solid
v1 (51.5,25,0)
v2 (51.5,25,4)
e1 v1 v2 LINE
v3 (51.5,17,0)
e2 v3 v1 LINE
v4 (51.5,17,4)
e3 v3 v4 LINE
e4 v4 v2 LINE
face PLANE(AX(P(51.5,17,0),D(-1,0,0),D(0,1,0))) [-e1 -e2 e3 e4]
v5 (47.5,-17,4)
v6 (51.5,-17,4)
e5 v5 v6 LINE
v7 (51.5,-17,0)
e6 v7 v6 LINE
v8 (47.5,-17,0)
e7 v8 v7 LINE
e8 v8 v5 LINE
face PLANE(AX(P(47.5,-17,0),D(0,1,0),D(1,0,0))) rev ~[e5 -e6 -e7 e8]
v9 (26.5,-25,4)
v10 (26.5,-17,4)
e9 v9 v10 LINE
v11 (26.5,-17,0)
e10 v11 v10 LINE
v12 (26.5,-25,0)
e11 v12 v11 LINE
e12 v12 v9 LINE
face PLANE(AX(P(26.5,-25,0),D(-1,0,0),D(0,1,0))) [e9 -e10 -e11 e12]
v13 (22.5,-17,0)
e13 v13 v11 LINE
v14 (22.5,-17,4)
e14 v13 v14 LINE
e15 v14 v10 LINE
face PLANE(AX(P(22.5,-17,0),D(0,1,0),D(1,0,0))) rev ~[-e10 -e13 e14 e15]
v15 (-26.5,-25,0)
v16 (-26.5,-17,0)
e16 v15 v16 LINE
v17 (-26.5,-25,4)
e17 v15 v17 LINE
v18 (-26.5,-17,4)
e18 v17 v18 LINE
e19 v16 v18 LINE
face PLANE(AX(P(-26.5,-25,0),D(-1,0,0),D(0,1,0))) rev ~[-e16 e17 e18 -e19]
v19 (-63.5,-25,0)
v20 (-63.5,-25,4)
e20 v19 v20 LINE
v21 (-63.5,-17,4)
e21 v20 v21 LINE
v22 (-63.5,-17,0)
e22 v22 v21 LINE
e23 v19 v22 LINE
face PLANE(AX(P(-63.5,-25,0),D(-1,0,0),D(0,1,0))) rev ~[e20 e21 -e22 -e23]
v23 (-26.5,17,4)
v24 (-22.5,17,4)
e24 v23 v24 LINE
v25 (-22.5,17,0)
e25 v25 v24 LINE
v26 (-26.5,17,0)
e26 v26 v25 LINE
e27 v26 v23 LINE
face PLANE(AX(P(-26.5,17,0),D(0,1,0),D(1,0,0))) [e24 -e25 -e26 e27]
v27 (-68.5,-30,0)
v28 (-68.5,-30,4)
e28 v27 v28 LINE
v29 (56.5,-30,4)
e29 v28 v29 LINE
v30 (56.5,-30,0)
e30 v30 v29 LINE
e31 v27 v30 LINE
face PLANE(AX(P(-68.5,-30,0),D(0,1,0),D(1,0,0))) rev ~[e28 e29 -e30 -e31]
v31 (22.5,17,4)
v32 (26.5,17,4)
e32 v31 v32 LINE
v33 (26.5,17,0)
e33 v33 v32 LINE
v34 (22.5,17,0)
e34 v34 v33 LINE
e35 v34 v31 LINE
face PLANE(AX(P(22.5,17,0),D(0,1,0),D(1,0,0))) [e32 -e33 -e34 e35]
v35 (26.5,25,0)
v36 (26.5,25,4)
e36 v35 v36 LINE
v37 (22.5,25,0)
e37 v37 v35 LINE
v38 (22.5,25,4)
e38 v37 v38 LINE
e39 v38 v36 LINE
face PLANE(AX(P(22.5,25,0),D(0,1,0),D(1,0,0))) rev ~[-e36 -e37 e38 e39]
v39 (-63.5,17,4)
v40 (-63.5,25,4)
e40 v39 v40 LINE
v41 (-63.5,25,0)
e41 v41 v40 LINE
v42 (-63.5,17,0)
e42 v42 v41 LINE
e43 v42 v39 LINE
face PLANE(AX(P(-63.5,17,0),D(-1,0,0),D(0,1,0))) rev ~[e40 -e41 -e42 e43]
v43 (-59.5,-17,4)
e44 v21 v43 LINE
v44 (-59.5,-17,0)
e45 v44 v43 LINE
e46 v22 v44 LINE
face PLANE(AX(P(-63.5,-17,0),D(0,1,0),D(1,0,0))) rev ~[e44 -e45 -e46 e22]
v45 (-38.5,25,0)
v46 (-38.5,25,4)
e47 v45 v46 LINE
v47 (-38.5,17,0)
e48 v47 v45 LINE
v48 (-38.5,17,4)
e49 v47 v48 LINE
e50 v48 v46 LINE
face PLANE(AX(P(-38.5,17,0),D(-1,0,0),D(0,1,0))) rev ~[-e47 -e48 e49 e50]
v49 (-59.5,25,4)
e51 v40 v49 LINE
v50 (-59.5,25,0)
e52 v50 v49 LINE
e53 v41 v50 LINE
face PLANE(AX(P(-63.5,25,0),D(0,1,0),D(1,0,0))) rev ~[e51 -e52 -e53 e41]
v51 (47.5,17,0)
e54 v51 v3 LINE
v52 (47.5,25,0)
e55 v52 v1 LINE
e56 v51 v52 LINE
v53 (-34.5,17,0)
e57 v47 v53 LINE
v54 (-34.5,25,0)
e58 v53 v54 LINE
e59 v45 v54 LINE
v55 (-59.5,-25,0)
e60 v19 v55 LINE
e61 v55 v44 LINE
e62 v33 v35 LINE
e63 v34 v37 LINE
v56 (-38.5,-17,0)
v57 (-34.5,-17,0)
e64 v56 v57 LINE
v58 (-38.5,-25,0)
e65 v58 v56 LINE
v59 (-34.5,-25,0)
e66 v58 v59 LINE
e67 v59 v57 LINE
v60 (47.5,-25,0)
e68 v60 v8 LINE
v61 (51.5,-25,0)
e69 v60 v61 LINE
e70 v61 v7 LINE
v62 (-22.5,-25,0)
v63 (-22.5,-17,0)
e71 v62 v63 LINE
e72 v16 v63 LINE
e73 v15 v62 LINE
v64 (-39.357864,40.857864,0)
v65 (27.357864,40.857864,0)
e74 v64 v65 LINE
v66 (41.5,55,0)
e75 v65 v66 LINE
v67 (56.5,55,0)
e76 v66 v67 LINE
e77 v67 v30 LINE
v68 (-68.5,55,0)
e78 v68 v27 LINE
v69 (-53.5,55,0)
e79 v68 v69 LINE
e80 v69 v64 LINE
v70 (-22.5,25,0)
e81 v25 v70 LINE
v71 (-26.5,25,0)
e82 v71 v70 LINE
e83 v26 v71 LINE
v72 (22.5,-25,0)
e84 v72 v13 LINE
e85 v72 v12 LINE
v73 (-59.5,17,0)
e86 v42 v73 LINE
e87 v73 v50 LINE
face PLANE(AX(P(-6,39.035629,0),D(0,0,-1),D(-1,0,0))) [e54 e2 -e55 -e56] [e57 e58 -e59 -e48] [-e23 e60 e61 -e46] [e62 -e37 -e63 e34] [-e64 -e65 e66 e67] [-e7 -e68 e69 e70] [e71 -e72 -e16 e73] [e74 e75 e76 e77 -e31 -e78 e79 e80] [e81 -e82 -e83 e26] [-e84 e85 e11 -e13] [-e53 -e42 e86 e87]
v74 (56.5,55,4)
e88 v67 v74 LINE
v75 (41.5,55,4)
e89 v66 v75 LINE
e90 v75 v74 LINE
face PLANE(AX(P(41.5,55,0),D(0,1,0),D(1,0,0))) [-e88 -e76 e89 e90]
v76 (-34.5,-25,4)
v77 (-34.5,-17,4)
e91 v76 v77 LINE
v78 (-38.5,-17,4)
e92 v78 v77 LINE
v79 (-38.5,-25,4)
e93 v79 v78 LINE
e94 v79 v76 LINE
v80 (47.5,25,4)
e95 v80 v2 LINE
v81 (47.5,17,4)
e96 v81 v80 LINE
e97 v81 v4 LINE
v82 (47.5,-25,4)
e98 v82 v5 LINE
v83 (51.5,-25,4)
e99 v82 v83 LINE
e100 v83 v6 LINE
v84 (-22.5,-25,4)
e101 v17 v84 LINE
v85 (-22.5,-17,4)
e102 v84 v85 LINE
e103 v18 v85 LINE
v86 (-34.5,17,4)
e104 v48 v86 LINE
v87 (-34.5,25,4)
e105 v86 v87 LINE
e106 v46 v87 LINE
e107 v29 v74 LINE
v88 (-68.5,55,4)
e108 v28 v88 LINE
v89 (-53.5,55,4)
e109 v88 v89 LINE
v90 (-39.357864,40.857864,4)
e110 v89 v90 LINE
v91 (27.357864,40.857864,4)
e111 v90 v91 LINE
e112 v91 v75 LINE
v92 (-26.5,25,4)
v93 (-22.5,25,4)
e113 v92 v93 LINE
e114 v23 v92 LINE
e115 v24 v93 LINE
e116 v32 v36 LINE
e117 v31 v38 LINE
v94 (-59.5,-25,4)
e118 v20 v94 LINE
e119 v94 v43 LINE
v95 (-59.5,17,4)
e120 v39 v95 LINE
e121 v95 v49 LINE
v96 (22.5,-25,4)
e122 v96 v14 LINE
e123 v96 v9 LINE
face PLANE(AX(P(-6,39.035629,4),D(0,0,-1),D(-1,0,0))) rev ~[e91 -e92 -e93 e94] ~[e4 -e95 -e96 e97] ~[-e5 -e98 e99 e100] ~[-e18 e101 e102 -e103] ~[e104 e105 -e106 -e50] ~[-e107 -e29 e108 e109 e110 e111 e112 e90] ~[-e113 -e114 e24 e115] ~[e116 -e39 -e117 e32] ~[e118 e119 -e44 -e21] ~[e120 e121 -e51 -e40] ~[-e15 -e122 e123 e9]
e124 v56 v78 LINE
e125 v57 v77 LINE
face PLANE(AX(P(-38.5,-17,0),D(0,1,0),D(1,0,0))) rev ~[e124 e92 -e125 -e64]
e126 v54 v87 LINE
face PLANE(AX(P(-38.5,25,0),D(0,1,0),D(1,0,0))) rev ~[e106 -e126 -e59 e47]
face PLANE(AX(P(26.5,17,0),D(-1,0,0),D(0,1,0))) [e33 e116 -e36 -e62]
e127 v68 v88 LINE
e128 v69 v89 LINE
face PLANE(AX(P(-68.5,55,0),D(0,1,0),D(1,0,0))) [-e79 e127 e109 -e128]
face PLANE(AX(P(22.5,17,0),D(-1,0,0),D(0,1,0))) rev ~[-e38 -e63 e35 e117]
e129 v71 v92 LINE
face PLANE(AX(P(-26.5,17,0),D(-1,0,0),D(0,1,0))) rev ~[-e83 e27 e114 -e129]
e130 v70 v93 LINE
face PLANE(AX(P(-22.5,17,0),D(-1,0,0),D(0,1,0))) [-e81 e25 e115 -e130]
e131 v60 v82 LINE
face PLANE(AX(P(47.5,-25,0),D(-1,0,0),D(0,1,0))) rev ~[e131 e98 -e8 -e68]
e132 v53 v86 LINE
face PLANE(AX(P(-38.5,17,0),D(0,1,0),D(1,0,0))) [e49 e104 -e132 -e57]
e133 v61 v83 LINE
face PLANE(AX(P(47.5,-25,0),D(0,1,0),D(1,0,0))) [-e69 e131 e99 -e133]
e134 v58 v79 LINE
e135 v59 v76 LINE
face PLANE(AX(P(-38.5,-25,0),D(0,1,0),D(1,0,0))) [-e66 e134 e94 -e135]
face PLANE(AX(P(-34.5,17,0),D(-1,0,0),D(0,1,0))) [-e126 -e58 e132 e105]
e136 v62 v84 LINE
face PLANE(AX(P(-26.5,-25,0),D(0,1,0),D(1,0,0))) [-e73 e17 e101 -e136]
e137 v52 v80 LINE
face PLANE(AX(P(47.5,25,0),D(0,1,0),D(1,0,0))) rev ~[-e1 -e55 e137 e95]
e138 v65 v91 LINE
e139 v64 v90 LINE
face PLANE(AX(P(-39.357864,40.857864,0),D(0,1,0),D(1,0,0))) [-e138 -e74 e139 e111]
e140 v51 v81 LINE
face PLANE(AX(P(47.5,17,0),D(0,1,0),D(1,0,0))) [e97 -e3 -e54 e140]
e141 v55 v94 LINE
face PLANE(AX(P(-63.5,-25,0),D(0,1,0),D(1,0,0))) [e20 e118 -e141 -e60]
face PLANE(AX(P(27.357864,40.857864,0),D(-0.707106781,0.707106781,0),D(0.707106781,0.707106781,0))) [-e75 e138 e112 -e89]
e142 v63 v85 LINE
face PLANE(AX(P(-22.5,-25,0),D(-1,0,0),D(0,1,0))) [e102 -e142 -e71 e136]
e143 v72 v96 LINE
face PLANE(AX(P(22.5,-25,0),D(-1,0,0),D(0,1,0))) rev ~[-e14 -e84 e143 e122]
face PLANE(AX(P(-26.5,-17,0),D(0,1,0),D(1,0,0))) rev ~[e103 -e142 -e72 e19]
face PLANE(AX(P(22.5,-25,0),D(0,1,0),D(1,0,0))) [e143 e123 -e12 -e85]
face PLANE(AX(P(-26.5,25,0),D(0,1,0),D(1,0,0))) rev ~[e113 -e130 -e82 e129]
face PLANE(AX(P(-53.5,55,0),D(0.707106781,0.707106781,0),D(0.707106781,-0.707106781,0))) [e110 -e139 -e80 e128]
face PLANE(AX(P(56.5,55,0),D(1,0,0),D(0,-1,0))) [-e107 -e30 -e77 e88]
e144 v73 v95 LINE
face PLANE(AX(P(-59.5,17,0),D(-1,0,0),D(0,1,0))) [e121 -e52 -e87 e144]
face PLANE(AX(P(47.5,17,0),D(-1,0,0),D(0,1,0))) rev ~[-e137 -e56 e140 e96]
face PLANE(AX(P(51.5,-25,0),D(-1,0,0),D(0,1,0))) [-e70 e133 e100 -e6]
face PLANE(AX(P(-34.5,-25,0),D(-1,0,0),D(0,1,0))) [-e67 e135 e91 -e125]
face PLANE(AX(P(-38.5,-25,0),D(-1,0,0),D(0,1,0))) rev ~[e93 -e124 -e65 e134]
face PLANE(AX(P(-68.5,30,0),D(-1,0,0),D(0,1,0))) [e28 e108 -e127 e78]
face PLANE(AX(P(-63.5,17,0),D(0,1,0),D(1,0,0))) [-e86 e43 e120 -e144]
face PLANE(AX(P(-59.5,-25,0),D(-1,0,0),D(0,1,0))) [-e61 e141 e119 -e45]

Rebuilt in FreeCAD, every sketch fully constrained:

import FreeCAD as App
import Part
import Sketcher
from FreeCAD import Vector

doc = App.newDocument("Part")
body = doc.addObject("PartDesign::Body", "Body")

# Sketch on XY plane
sketch1 = body.newObject("Sketcher::SketchObject", "Sketch")
sketch1.AttachmentSupport = (doc.getObject("XY_Plane"), [""])
sketch1.MapMode = "FlatFace"
sketch1.addGeometry([
    Part.LineSegment(Vector(-68.5, 30, 0), Vector(-68.5, -30, 0)),  # 0
    Part.LineSegment(Vector(-68.5, -30, 0), Vector(56.5, -30, 0)),  # 1
    Part.LineSegment(Vector(56.5, -30, 0), Vector(56.5, 30, 0)),  # 2
    Part.LineSegment(Vector(56.5, 30, 0), Vector(-68.5, 30, 0)),  # 3
    Part.LineSegment(Vector(-59.5, -25, 0), Vector(-63.5, -25, 0)),  # 4
    Part.LineSegment(Vector(-63.5, -25, 0), Vector(-63.5, -17, 0)),  # 5
    Part.LineSegment(Vector(-63.5, -17, 0), Vector(-59.5, -17, 0)),  # 6
    Part.LineSegment(Vector(-59.5, -17, 0), Vector(-59.5, -25, 0)),  # 7
    Part.LineSegment(Vector(-34.5, -25, 0), Vector(-38.5, -25, 0)),  # 8
    Part.LineSegment(Vector(-38.5, -25, 0), Vector(-38.5, -17, 0)),  # 9
    Part.LineSegment(Vector(-38.5, -17, 0), Vector(-34.5, -17, 0)),  # 10
    Part.LineSegment(Vector(-34.5, -17, 0), Vector(-34.5, -25, 0)),  # 11
    Part.LineSegment(Vector(-22.5, -25, 0), Vector(-26.5, -25, 0)),  # 12
    Part.LineSegment(Vector(-26.5, -25, 0), Vector(-26.5, -17, 0)),  # 13
    Part.LineSegment(Vector(-26.5, -17, 0), Vector(-22.5, -17, 0)),  # 14
    Part.LineSegment(Vector(-22.5, -17, 0), Vector(-22.5, -25, 0)),  # 15
    Part.LineSegment(Vector(26.5, -25, 0), Vector(22.5, -25, 0)),  # 16
    Part.LineSegment(Vector(22.5, -25, 0), Vector(22.5, -17, 0)),  # 17
    Part.LineSegment(Vector(22.5, -17, 0), Vector(26.5, -17, 0)),  # 18
    Part.LineSegment(Vector(26.5, -17, 0), Vector(26.5, -25, 0)),  # 19
    Part.LineSegment(Vector(51.5, -25, 0), Vector(47.5, -25, 0)),  # 20
    Part.LineSegment(Vector(47.5, -25, 0), Vector(47.5, -17, 0)),  # 21
    Part.LineSegment(Vector(47.5, -17, 0), Vector(51.5, -17, 0)),  # 22
    Part.LineSegment(Vector(51.5, -17, 0), Vector(51.5, -25, 0)),  # 23
    Part.LineSegment(Vector(-59.5, 17, 0), Vector(-63.5, 17, 0)),  # 24
    Part.LineSegment(Vector(-63.5, 17, 0), Vector(-63.5, 25, 0)),  # 25
    Part.LineSegment(Vector(-63.5, 25, 0), Vector(-59.5, 25, 0)),  # 26
    Part.LineSegment(Vector(-59.5, 25, 0), Vector(-59.5, 17, 0)),  # 27
    Part.LineSegment(Vector(-34.5, 17, 0), Vector(-38.5, 17, 0)),  # 28
    Part.LineSegment(Vector(-38.5, 17, 0), Vector(-38.5, 25, 0)),  # 29
    Part.LineSegment(Vector(-38.5, 25, 0), Vector(-34.5, 25, 0)),  # 30
    Part.LineSegment(Vector(-34.5, 25, 0), Vector(-34.5, 17, 0)),  # 31
    Part.LineSegment(Vector(-22.5, 17, 0), Vector(-26.5, 17, 0)),  # 32
    Part.LineSegment(Vector(-26.5, 17, 0), Vector(-26.5, 25, 0)),  # 33
    Part.LineSegment(Vector(-26.5, 25, 0), Vector(-22.5, 25, 0)),  # 34
    Part.LineSegment(Vector(-22.5, 25, 0), Vector(-22.5, 17, 0)),  # 35
    Part.LineSegment(Vector(26.5, 17, 0), Vector(22.5, 17, 0)),  # 36
    Part.LineSegment(Vector(22.5, 17, 0), Vector(22.5, 25, 0)),  # 37
    Part.LineSegment(Vector(22.5, 25, 0), Vector(26.5, 25, 0)),  # 38
    Part.LineSegment(Vector(26.5, 25, 0), Vector(26.5, 17, 0)),  # 39
    Part.LineSegment(Vector(51.5, 17, 0), Vector(47.5, 17, 0)),  # 40
    Part.LineSegment(Vector(47.5, 17, 0), Vector(47.5, 25, 0)),  # 41
    Part.LineSegment(Vector(47.5, 25, 0), Vector(51.5, 25, 0)),  # 42
    Part.LineSegment(Vector(51.5, 25, 0), Vector(51.5, 17, 0)),  # 43
], False)
sketch1.addConstraint([
    Sketcher.Constraint("Coincident", 0, 2, 1, 1),
    Sketcher.Constraint("Coincident", 1, 2, 2, 1),
    Sketcher.Constraint("Coincident", 2, 2, 3, 1),
    Sketcher.Constraint("Coincident", 3, 2, 0, 1),
    Sketcher.Constraint("Coincident", 4, 2, 5, 1),
    Sketcher.Constraint("Coincident", 5, 2, 6, 1),
    Sketcher.Constraint("Coincident", 6, 2, 7, 1),
    Sketcher.Constraint("Coincident", 7, 2, 4, 1),
    Sketcher.Constraint("Coincident", 8, 2, 9, 1),
    Sketcher.Constraint("Coincident", 9, 2, 10, 1),
    Sketcher.Constraint("Coincident", 10, 2, 11, 1),
    Sketcher.Constraint("Coincident", 11, 2, 8, 1),
    Sketcher.Constraint("Coincident", 12, 2, 13, 1),
    Sketcher.Constraint("Coincident", 13, 2, 14, 1),
    Sketcher.Constraint("Coincident", 14, 2, 15, 1),
    Sketcher.Constraint("Coincident", 15, 2, 12, 1),
    Sketcher.Constraint("Coincident", 16, 2, 17, 1),
    Sketcher.Constraint("Coincident", 17, 2, 18, 1),
    Sketcher.Constraint("Coincident", 18, 2, 19, 1),
    Sketcher.Constraint("Coincident", 19, 2, 16, 1),
    Sketcher.Constraint("Coincident", 20, 2, 21, 1),
    Sketcher.Constraint("Coincident", 21, 2, 22, 1),
    Sketcher.Constraint("Coincident", 22, 2, 23, 1),
    Sketcher.Constraint("Coincident", 23, 2, 20, 1),
    Sketcher.Constraint("Coincident", 24, 2, 25, 1),
    Sketcher.Constraint("Coincident", 25, 2, 26, 1),
    Sketcher.Constraint("Coincident", 26, 2, 27, 1),
    Sketcher.Constraint("Coincident", 27, 2, 24, 1),
    Sketcher.Constraint("Coincident", 28, 2, 29, 1),
    Sketcher.Constraint("Coincident", 29, 2, 30, 1),
    Sketcher.Constraint("Coincident", 30, 2, 31, 1),
    Sketcher.Constraint("Coincident", 31, 2, 28, 1),
    Sketcher.Constraint("Coincident", 32, 2, 33, 1),
    Sketcher.Constraint("Coincident", 33, 2, 34, 1),
    Sketcher.Constraint("Coincident", 34, 2, 35, 1),
    Sketcher.Constraint("Coincident", 35, 2, 32, 1),
    Sketcher.Constraint("Coincident", 36, 2, 37, 1),
    Sketcher.Constraint("Coincident", 37, 2, 38, 1),
    Sketcher.Constraint("Coincident", 38, 2, 39, 1),
    Sketcher.Constraint("Coincident", 39, 2, 36, 1),
    Sketcher.Constraint("Coincident", 40, 2, 41, 1),
    Sketcher.Constraint("Coincident", 41, 2, 42, 1),
    Sketcher.Constraint("Coincident", 42, 2, 43, 1),
    Sketcher.Constraint("Coincident", 43, 2, 40, 1),
    Sketcher.Constraint("Vertical", 0),
    Sketcher.Constraint("Horizontal", 1),
    Sketcher.Constraint("Vertical", 2),
    Sketcher.Constraint("Horizontal", 3),
    Sketcher.Constraint("Horizontal", 4),
    Sketcher.Constraint("Vertical", 5),
    Sketcher.Constraint("Horizontal", 6),
    Sketcher.Constraint("Vertical", 7),
    Sketcher.Constraint("Horizontal", 8),
    Sketcher.Constraint("Vertical", 9),
    Sketcher.Constraint("Horizontal", 10),
    Sketcher.Constraint("Vertical", 11),
    Sketcher.Constraint("Horizontal", 12),
    Sketcher.Constraint("Vertical", 13),
    Sketcher.Constraint("Horizontal", 14),
    Sketcher.Constraint("Vertical", 15),
    Sketcher.Constraint("Horizontal", 16),
    Sketcher.Constraint("Vertical", 17),
    Sketcher.Constraint("Horizontal", 18),
    Sketcher.Constraint("Vertical", 19),
    Sketcher.Constraint("Horizontal", 20),
    Sketcher.Constraint("Vertical", 21),
    Sketcher.Constraint("Horizontal", 22),
    Sketcher.Constraint("Vertical", 23),
    Sketcher.Constraint("Horizontal", 24),
    Sketcher.Constraint("Vertical", 25),
    Sketcher.Constraint("Horizontal", 26),
    Sketcher.Constraint("Vertical", 27),
    Sketcher.Constraint("Horizontal", 28),
    Sketcher.Constraint("Vertical", 29),
    Sketcher.Constraint("Horizontal", 30),
    Sketcher.Constraint("Vertical", 31),
    Sketcher.Constraint("Horizontal", 32),
    Sketcher.Constraint("Vertical", 33),
    Sketcher.Constraint("Horizontal", 34),
    Sketcher.Constraint("Vertical", 35),
    Sketcher.Constraint("Horizontal", 36),
    Sketcher.Constraint("Vertical", 37),
    Sketcher.Constraint("Horizontal", 38),
    Sketcher.Constraint("Vertical", 39),
    Sketcher.Constraint("Horizontal", 40),
    Sketcher.Constraint("Vertical", 41),
    Sketcher.Constraint("Horizontal", 42),
    Sketcher.Constraint("Vertical", 43),
    Sketcher.Constraint("Symmetric", 18, 2, 32, 2, -1, 1),
    Sketcher.Constraint("Symmetric", 16, 2, 34, 2, -1, 1),
    Sketcher.Constraint("Symmetric", 14, 2, 36, 2, -1, 1),
    Sketcher.Constraint("Symmetric", 12, 2, 38, 2, -1, 1),
    Sketcher.Constraint("Symmetric", 15, 2, 16, 2, -2),
    Sketcher.Constraint("Symmetric", 13, 2, 18, 2, -2),
    Sketcher.Constraint("Symmetric", 5, 2, 24, 2, -1),
    Sketcher.Constraint("Symmetric", 7, 2, 26, 2, -1),
    Sketcher.Constraint("Symmetric", 9, 2, 28, 2, -1),
    Sketcher.Constraint("Symmetric", 11, 2, 30, 2, -1),
    Sketcher.Constraint("Symmetric", 21, 2, 40, 2, -1),
    Sketcher.Constraint("Symmetric", 23, 2, 42, 2, -1),
    Sketcher.Constraint("Horizontal", 7, 2, 8, 2),
    Sketcher.Constraint("Horizontal", 6, 2, 9, 2),
    Sketcher.Constraint("Horizontal", 11, 2, 12, 2),
    Sketcher.Constraint("Horizontal", 10, 2, 13, 2),
    Sketcher.Constraint("Horizontal", 19, 2, 20, 2),
    Sketcher.Constraint("Horizontal", 18, 2, 21, 2),
    Sketcher.Constraint("Equal", 6, 8),
    Sketcher.Constraint("Equal", 10, 12),
    Sketcher.Constraint("Equal", 18, 20),
    Sketcher.Constraint("DistanceX", 1, 1, 1, 2, 125.0),
    Sketcher.Constraint("DistanceX", 4, 2, 4, 1, 4.0),
    Sketcher.Constraint("DistanceY", 0, 2, 0, 1, 60.0),
    Sketcher.Constraint("DistanceY", 5, 1, 5, 2, 8.0),
    Sketcher.Constraint("DistanceY", 0, 2, -1, 1, 30.0),
    Sketcher.Constraint("DistanceY", 4, 2, -1, 1, 25.0),
    Sketcher.Constraint("DistanceX", 0, 2, 4, 2, 5.0),
    Sketcher.Constraint("DistanceX", 7, 2, 8, 2, 21.0),
    Sketcher.Constraint("DistanceX", 11, 2, 12, 2, 8.0),
    Sketcher.Constraint("DistanceX", 16, 2, 1, 2, 34.0),
    Sketcher.Constraint("DistanceX", 20, 2, 1, 2, 9.0),
])
pad1 = body.newObject("PartDesign::Pad", "Pad")
pad1.Profile = sketch1
pad1.Length = 4

# Sketch on XY plane
sketch2 = body.newObject("Sketcher::SketchObject", "Sketch001")
sketch2.AttachmentSupport = (doc.getObject("XY_Plane"), [""])
sketch2.MapMode = "FlatFace"
sketch2.addGeometry([
    Part.LineSegment(Vector(-68, 55, 0), Vector(-68, 30, 0)),  # 0
    Part.LineSegment(Vector(-68, 30, 0), Vector(56, 30, 0)),  # 1
    Part.LineSegment(Vector(56, 30, 0), Vector(56, 55, 0)),  # 2
    Part.LineSegment(Vector(56, 55, 0), Vector(42, 55, 0)),  # 3
    Part.LineSegment(Vector(42, 55, 0), Vector(27, 41, 0)),  # 4
    Part.LineSegment(Vector(27, 41, 0), Vector(-39, 41, 0)),  # 5
    Part.LineSegment(Vector(-39, 41, 0), Vector(-54, 55, 0)),  # 6
    Part.LineSegment(Vector(-54, 55, 0), Vector(-68, 55, 0)),  # 7
], False)
sketch2.addConstraint([
    Sketcher.Constraint("Coincident", 0, 2, 1, 1),
    Sketcher.Constraint("Coincident", 1, 2, 2, 1),
    Sketcher.Constraint("Coincident", 2, 2, 3, 1),
    Sketcher.Constraint("Coincident", 3, 2, 4, 1),
    Sketcher.Constraint("Coincident", 4, 2, 5, 1),
    Sketcher.Constraint("Coincident", 5, 2, 6, 1),
    Sketcher.Constraint("Coincident", 6, 2, 7, 1),
    Sketcher.Constraint("Coincident", 7, 2, 0, 1),
    Sketcher.Constraint("Vertical", 0),
    Sketcher.Constraint("Horizontal", 1),
    Sketcher.Constraint("Vertical", 2),
    Sketcher.Constraint("Horizontal", 3),
    Sketcher.Constraint("Horizontal", 5),
    Sketcher.Constraint("Horizontal", 7),
    Sketcher.Constraint("Perpendicular", 4, 6),
    Sketcher.Constraint("Horizontal", 3, 2, 6, 2),
    Sketcher.Constraint("Equal", 3, 7),
    Sketcher.Constraint("Equal", 4, 6),
    Sketcher.Constraint("DistanceX", 1, 1, 1, 2, 125.0),
    Sketcher.Constraint("DistanceX", 3, 2, 3, 1, 15.0),
    Sketcher.Constraint("DistanceY", 0, 2, 0, 1, 25.0),
    Sketcher.Constraint("Distance", 4, 20.0),
    Sketcher.Constraint("DistanceY", -1, 1, 0, 2, 30.0),
    Sketcher.Constraint("DistanceX", 0, 2, -1, 1, 68.5),
])
pad2 = body.newObject("PartDesign::Pad", "Pad001")
pad2.Profile = sketch2
pad2.Length = 4

doc.recompute()
